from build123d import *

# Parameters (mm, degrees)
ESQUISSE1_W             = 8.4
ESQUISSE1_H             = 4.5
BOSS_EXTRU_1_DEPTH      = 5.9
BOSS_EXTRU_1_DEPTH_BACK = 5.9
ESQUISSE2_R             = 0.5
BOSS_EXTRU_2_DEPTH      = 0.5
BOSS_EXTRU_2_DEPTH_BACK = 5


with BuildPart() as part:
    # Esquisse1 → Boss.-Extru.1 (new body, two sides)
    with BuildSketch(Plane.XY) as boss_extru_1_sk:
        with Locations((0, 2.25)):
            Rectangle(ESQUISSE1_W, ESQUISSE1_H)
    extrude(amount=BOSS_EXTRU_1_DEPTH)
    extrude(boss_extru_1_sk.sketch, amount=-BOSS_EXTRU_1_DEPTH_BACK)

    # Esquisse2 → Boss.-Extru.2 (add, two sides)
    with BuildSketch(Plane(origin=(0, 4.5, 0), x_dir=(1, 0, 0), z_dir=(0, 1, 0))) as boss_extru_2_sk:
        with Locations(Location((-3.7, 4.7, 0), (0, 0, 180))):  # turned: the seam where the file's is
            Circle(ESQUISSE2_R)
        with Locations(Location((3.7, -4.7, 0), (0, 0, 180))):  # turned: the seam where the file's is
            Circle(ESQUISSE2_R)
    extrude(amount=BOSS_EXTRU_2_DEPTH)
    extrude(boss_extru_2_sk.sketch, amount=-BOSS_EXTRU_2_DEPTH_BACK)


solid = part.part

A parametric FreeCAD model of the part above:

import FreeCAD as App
import Part
import Sketcher
from FreeCAD import Vector
Q = App.Units.Quantity


def add_polygon(sketch, points):
    """Adds a closed chain of lines whose ends are joined by coincident constraints."""
    first, n = sketch.GeometryCount, len(points)
    for a, b in zip(points, points[1:] + points[:1]):
        sketch.addGeometry(Part.LineSegment(App.Vector(*a, 0), App.Vector(*b, 0)), False)
    for i in range(n):
        sketch.addConstraint(Sketcher.Constraint("Coincident", first + i, 2, first + (i + 1) % n, 1))

doc = App.newDocument("Part")
body = doc.addObject("PartDesign::Body", "Body")

sketch1 = doc.addObject("Sketcher::SketchObject", "Sketch")
body.addObject(sketch1)
sketch1.AttachmentSupport = (doc.XY_Plane, [""])
sketch1.MapMode = "FlatFace"
add_polygon(sketch1, [(-4.2, 4.5), (-4.2, 0), (4.2, 0), (4.2, 4.5)])
sketch1.addConstraint(Sketcher.Constraint("Vertical", 0))
sketch1.addConstraint(Sketcher.Constraint("Horizontal", 1))
sketch1.addConstraint(Sketcher.Constraint("Vertical", 2))
sketch1.addConstraint(Sketcher.Constraint("Horizontal", 3))
sketch1.addConstraint(Sketcher.Constraint("Symmetric", 0, 2, 1, 2, -1, 1))
sketch1.addConstraint(Sketcher.Constraint("DistanceX", 1, 1, 1, 2, Q("8.4 mm")))
sketch1.addConstraint(Sketcher.Constraint("DistanceY", 0, 2, 0, 1, Q("4.5 mm")))
pad1 = doc.addObject("PartDesign::Pad", "Pad")
body.addObject(pad1)
pad1.Profile = sketch1
pad1.Type = "TwoLengths"
pad1.Length = 5.9
pad1.Length2 = 5.9

sketch2 = doc.addObject("Sketcher::SketchObject", "Sketch001")
body.addObject(sketch2)
sketch2.AttachmentSupport = (doc.XZ_Plane, [""])
sketch2.MapMode = "FlatFace"
sketch2.AttachmentOffset = App.Placement(Vector(0, 0, -4.5), App.Rotation())
sketch2.addGeometry(Part.Circle(Vector(-3.7, -4.7, 0), Vector(0, 0, 1), 0.5), False)
sketch2.addGeometry(Part.Circle(Vector(3.7, 4.7, 0), Vector(0, 0, 1), 0.5), False)
sketch2.addConstraint(Sketcher.Constraint("Equal", 0, 1))
sketch2.addConstraint(Sketcher.Constraint("Symmetric", 0, 3, 1, 3, -1, 1))
sketch2.addConstraint(Sketcher.Constraint("Diameter", 0, Q("1 mm")))
sketch2.addConstraint(Sketcher.Constraint("DistanceX", 0, 3, -1, 1, Q("3.7 mm")))
sketch2.addConstraint(Sketcher.Constraint("DistanceY", 0, 3, -1, 1, Q("4.7 mm")))
pad2 = doc.addObject("PartDesign::Pad", "Pad001")
body.addObject(pad2)
pad2.Profile = sketch2
pad2.Type = "TwoLengths"
pad2.Length = 0.5
pad2.Length2 = 5
pad2.Reversed = True

doc.recompute()
